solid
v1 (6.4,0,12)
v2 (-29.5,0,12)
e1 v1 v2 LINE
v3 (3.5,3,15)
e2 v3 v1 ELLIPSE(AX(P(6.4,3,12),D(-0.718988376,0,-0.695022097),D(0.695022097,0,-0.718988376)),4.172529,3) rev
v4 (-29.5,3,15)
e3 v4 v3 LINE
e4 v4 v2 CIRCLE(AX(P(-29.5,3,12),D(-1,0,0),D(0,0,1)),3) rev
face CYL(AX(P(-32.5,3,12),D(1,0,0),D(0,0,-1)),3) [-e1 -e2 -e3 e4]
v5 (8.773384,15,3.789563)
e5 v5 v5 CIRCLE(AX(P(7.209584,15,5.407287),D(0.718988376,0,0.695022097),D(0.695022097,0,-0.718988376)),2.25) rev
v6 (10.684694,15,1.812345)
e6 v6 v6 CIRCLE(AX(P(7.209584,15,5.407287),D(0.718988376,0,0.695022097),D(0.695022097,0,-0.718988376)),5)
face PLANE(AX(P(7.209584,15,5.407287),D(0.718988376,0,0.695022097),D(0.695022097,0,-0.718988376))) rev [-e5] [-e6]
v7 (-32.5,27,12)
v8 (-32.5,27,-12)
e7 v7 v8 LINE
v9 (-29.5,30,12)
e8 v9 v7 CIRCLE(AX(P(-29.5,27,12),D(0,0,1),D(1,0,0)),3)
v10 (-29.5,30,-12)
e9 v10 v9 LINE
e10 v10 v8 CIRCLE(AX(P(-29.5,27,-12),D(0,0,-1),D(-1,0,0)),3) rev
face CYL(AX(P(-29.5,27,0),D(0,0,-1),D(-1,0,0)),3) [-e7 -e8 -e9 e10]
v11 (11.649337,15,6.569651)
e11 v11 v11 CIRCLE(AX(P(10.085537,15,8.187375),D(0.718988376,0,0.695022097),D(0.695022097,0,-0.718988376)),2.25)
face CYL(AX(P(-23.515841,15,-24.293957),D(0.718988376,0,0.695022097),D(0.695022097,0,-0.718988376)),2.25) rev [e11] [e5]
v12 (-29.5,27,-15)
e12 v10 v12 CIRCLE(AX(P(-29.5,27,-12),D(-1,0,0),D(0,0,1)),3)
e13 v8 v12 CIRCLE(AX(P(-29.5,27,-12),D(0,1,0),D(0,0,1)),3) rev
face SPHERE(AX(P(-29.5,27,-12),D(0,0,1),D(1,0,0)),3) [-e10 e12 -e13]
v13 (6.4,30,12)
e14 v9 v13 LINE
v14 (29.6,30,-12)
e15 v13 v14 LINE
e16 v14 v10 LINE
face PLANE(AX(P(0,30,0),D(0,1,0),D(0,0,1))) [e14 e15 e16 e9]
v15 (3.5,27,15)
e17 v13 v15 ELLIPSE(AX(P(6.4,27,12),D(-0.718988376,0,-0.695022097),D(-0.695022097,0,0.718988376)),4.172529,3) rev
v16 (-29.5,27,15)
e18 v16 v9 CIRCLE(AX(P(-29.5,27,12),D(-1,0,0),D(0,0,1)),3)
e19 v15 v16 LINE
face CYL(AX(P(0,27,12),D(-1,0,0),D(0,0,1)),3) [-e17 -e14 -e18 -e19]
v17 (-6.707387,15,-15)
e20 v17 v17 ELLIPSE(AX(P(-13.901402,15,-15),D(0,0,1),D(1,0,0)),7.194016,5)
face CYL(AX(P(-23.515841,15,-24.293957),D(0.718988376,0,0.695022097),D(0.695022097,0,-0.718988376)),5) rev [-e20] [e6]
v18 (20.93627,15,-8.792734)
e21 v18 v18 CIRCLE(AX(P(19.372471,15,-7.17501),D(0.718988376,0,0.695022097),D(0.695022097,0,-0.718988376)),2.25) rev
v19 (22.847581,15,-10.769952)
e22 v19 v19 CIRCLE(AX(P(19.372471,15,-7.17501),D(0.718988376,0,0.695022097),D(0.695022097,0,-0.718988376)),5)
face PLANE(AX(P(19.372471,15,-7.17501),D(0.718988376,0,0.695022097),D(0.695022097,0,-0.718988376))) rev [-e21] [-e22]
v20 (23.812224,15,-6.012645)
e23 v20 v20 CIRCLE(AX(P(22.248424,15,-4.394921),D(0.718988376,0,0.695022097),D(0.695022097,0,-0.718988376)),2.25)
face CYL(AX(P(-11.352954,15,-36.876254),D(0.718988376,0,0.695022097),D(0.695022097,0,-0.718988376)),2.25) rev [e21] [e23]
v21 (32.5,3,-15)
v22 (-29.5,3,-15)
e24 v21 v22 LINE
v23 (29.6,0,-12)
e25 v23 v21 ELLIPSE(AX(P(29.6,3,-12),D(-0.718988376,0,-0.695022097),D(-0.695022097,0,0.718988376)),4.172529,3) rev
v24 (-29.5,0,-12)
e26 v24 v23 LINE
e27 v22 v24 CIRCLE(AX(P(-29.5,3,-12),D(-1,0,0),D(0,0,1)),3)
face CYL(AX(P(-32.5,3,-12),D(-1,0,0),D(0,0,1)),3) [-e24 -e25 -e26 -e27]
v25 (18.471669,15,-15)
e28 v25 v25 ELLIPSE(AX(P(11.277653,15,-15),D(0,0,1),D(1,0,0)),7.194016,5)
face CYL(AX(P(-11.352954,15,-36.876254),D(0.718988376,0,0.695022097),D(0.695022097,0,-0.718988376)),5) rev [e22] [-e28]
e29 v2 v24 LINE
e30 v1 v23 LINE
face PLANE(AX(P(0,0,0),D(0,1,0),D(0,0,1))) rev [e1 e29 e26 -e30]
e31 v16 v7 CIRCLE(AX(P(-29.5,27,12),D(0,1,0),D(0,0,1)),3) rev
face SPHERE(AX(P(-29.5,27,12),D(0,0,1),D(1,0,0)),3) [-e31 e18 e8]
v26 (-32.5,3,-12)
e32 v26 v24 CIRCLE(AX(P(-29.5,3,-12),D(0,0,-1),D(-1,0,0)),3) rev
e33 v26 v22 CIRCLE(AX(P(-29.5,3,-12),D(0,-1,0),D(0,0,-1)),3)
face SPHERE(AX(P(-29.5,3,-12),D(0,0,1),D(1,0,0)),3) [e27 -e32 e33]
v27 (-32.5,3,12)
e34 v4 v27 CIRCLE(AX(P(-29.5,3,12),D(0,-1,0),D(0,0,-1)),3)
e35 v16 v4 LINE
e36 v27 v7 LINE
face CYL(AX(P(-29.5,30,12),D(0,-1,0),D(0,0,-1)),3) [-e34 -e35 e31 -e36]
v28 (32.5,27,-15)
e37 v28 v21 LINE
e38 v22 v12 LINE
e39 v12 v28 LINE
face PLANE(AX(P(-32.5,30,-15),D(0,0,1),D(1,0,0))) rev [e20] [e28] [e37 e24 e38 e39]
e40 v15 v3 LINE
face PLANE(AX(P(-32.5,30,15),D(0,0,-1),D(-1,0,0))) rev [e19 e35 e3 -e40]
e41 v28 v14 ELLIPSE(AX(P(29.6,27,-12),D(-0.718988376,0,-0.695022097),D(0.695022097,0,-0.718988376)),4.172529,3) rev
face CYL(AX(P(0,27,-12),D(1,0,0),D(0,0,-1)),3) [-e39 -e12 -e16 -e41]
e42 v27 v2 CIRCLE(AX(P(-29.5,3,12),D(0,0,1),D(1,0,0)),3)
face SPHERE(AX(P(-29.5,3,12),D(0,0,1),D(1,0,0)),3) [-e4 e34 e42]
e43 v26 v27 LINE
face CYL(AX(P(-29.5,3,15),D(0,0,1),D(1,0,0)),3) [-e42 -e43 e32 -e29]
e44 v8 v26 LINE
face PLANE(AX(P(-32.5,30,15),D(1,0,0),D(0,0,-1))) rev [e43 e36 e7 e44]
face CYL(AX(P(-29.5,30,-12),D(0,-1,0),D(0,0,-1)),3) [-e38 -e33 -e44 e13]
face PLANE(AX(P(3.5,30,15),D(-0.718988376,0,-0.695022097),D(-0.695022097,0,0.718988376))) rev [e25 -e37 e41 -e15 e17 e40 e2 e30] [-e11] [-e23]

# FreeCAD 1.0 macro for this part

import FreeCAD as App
import Part
import Sketcher
from FreeCAD import Vector


def edges_at(feature, points):
    """Names of the edges that pass closest to the given points."""
    edges = feature.Shape.Edges
    near = lambda p: min(range(len(edges)), key=lambda i: edges[i].distToShape(Part.Vertex(*p))[0])
    return sorted({f"Edge{near(p) + 1}" for p in points})

doc = App.newDocument("Part")
params = doc.addObject("Spreadsheet::Sheet", "Params")
for row, (alias, value) in enumerate([
    ("sketch1_width", "65 mm"),
    ("sketch1_width2", "36 mm"),
    ("sketch1_height", "30 mm"),
    ("pad1_length", "30 mm"),
    ("sketch2_diameter", "4.5 mm"),
    ("sketch3_diameter", "10 mm"),
    ("fillet_radius", "3 mm"),
], start=1):
    params.set(f"A{row}", alias)
    params.set(f"B{row}", "=" + value)
    params.setAlias(f"B{row}", alias)

body = doc.addObject("PartDesign::Body", "Body")

sketch1 = body.newObject("Sketcher::SketchObject", "Sketch")
sketch1.AttachmentSupport = (doc.getObject("XZ_Plane"), [""])
sketch1.MapMode = "FlatFace"
sketch1.addGeometry(Part.LineSegment(Vector(3.5, 15, 0), Vector(32.5, -15, 0)), False)
sketch1.addGeometry(Part.LineSegment(Vector(32.5, -15, 0), Vector(-32.5, -15, 0)), False)
sketch1.addGeometry(Part.LineSegment(Vector(-32.5, -15, 0), Vector(-32.5, 15, 0)), False)
sketch1.addGeometry(Part.LineSegment(Vector(-32.5, 15, 0), Vector(3.5, 15, 0)), False)
sketch1.addConstraint(Sketcher.Constraint("Coincident", 0, 2, 1, 1))
sketch1.addConstraint(Sketcher.Constraint("Coincident", 1, 2, 2, 1))
sketch1.addConstraint(Sketcher.Constraint("Coincident", 2, 2, 3, 1))
sketch1.addConstraint(Sketcher.Constraint("Coincident", 3, 2, 0, 1))
sketch1.addConstraint(Sketcher.Constraint("Horizontal", 1))
sketch1.addConstraint(Sketcher.Constraint("Vertical", 2))
sketch1.addConstraint(Sketcher.Constraint("Horizontal", 3))
sketch1.addConstraint(Sketcher.Constraint("Symmetric", 0, 2, 2, 2, -1, 1))
sketch1.addConstraint(Sketcher.Constraint("DistanceX", 1, 2, 1, 1, 65.0))
sketch1.addConstraint(Sketcher.Constraint("DistanceX", 3, 1, 3, 2, 36.0))
sketch1.addConstraint(Sketcher.Constraint("DistanceY", 2, 1, 2, 2, 30.0))
sketch1.setExpression("Constraints[8]", "Params.sketch1_width")
sketch1.setExpression("Constraints[9]", "Params.sketch1_width2")
sketch1.setExpression("Constraints[10]", "Params.sketch1_height")
pad1 = body.newObject("PartDesign::Pad", "Pad")
pad1.Profile = sketch1
pad1.setExpression("Length", "Params.pad1_length")
pad1.Reversed = True

sketch2 = body.newObject("Sketcher::SketchObject", "Sketch001")
sketch2.Placement = App.Placement(Vector(9.304997, 0, 8.994831), App.Rotation(Vector(0.695022097, 0, -0.718988376), Vector(0, 1, 0), Vector(0.718988376, 0, 0.695022097), "ZXY"))
sketch2.addGeometry(Part.Circle(Vector(18.623044, 15, 0), Vector(0, 0, 1), 2.25), False)
sketch2.addGeometry(Part.Circle(Vector(1.123044, 15, 0), Vector(0, 0, 1), 2.25), False)
sketch2.addConstraint(Sketcher.Constraint("Equal", 0, 1))
sketch2.addConstraint(Sketcher.Constraint("Horizontal", 0, 3, 1, 3))
sketch2.addConstraint(Sketcher.Constraint("Diameter", 0, 4.5))
sketch2.addConstraint(Sketcher.Constraint("DistanceY", -1, 1, 0, 3, 15.0))
sketch2.addConstraint(Sketcher.Constraint("DistanceX", 1, 3, 0, 3, 17.5))
sketch2.addConstraint(Sketcher.Constraint("DistanceX", -1, 1, 0, 3, 18.623044))
sketch2.setExpression("Constraints[2]", "Params.sketch2_diameter")
pocket1 = body.newObject("PartDesign::Pocket", "Pocket")
pocket1.Profile = sketch2
pocket1.Type = "ThroughAll"

sketch3 = body.newObject("Sketcher::SketchObject", "Sketch002")
sketch3.Placement = App.Placement(Vector(6.429044, 0, 6.214742), App.Rotation(Vector(0.695022097, 0, -0.718988376), Vector(0, 1, 0), Vector(0.718988376, 0, 0.695022097), "ZXY"))
sketch3.addGeometry(Part.Circle(Vector(18.623044, 15, 0), Vector(0, 0, 1), 5), False)
sketch3.addGeometry(Part.Circle(Vector(1.123044, 15, 0), Vector(0, 0, 1), 5), False)
sketch3.addConstraint(Sketcher.Constraint("Equal", 0, 1))
sketch3.addConstraint(Sketcher.Constraint("Horizontal", 0, 3, 1, 3))
sketch3.addConstraint(Sketcher.Constraint("Diameter", 0, 10.0))
sketch3.addConstraint(Sketcher.Constraint("DistanceY", -1, 1, 0, 3, 15.0))
sketch3.addConstraint(Sketcher.Constraint("DistanceX", 1, 3, 0, 3, 17.5))
sketch3.addConstraint(Sketcher.Constraint("DistanceX", -1, 1, 0, 3, 18.623044))
sketch3.setExpression("Constraints[2]", "Params.sketch3_diameter")
pocket2 = body.newObject("PartDesign::Pocket", "Pocket001")
pocket2.Profile = sketch3
pocket2.Type = "ThroughAll"
doc.recompute()

fillet = body.newObject("PartDesign::Fillet", "Fillet")
fillet.Base = (pocket2, edges_at(pocket2, [
    (-14.5, 30, 15),
    (0, 30, -15),
    (-14.5, 0, 15),
    (-32.5, 0, 0),
    (0, 0, -15),
    (-32.5, 30, 0),
    (-32.5, 15, 15),
    (-32.5, 15, -15),
]))
fillet.setExpression("Radius", "Params.fillet_radius")

doc.recompute()
